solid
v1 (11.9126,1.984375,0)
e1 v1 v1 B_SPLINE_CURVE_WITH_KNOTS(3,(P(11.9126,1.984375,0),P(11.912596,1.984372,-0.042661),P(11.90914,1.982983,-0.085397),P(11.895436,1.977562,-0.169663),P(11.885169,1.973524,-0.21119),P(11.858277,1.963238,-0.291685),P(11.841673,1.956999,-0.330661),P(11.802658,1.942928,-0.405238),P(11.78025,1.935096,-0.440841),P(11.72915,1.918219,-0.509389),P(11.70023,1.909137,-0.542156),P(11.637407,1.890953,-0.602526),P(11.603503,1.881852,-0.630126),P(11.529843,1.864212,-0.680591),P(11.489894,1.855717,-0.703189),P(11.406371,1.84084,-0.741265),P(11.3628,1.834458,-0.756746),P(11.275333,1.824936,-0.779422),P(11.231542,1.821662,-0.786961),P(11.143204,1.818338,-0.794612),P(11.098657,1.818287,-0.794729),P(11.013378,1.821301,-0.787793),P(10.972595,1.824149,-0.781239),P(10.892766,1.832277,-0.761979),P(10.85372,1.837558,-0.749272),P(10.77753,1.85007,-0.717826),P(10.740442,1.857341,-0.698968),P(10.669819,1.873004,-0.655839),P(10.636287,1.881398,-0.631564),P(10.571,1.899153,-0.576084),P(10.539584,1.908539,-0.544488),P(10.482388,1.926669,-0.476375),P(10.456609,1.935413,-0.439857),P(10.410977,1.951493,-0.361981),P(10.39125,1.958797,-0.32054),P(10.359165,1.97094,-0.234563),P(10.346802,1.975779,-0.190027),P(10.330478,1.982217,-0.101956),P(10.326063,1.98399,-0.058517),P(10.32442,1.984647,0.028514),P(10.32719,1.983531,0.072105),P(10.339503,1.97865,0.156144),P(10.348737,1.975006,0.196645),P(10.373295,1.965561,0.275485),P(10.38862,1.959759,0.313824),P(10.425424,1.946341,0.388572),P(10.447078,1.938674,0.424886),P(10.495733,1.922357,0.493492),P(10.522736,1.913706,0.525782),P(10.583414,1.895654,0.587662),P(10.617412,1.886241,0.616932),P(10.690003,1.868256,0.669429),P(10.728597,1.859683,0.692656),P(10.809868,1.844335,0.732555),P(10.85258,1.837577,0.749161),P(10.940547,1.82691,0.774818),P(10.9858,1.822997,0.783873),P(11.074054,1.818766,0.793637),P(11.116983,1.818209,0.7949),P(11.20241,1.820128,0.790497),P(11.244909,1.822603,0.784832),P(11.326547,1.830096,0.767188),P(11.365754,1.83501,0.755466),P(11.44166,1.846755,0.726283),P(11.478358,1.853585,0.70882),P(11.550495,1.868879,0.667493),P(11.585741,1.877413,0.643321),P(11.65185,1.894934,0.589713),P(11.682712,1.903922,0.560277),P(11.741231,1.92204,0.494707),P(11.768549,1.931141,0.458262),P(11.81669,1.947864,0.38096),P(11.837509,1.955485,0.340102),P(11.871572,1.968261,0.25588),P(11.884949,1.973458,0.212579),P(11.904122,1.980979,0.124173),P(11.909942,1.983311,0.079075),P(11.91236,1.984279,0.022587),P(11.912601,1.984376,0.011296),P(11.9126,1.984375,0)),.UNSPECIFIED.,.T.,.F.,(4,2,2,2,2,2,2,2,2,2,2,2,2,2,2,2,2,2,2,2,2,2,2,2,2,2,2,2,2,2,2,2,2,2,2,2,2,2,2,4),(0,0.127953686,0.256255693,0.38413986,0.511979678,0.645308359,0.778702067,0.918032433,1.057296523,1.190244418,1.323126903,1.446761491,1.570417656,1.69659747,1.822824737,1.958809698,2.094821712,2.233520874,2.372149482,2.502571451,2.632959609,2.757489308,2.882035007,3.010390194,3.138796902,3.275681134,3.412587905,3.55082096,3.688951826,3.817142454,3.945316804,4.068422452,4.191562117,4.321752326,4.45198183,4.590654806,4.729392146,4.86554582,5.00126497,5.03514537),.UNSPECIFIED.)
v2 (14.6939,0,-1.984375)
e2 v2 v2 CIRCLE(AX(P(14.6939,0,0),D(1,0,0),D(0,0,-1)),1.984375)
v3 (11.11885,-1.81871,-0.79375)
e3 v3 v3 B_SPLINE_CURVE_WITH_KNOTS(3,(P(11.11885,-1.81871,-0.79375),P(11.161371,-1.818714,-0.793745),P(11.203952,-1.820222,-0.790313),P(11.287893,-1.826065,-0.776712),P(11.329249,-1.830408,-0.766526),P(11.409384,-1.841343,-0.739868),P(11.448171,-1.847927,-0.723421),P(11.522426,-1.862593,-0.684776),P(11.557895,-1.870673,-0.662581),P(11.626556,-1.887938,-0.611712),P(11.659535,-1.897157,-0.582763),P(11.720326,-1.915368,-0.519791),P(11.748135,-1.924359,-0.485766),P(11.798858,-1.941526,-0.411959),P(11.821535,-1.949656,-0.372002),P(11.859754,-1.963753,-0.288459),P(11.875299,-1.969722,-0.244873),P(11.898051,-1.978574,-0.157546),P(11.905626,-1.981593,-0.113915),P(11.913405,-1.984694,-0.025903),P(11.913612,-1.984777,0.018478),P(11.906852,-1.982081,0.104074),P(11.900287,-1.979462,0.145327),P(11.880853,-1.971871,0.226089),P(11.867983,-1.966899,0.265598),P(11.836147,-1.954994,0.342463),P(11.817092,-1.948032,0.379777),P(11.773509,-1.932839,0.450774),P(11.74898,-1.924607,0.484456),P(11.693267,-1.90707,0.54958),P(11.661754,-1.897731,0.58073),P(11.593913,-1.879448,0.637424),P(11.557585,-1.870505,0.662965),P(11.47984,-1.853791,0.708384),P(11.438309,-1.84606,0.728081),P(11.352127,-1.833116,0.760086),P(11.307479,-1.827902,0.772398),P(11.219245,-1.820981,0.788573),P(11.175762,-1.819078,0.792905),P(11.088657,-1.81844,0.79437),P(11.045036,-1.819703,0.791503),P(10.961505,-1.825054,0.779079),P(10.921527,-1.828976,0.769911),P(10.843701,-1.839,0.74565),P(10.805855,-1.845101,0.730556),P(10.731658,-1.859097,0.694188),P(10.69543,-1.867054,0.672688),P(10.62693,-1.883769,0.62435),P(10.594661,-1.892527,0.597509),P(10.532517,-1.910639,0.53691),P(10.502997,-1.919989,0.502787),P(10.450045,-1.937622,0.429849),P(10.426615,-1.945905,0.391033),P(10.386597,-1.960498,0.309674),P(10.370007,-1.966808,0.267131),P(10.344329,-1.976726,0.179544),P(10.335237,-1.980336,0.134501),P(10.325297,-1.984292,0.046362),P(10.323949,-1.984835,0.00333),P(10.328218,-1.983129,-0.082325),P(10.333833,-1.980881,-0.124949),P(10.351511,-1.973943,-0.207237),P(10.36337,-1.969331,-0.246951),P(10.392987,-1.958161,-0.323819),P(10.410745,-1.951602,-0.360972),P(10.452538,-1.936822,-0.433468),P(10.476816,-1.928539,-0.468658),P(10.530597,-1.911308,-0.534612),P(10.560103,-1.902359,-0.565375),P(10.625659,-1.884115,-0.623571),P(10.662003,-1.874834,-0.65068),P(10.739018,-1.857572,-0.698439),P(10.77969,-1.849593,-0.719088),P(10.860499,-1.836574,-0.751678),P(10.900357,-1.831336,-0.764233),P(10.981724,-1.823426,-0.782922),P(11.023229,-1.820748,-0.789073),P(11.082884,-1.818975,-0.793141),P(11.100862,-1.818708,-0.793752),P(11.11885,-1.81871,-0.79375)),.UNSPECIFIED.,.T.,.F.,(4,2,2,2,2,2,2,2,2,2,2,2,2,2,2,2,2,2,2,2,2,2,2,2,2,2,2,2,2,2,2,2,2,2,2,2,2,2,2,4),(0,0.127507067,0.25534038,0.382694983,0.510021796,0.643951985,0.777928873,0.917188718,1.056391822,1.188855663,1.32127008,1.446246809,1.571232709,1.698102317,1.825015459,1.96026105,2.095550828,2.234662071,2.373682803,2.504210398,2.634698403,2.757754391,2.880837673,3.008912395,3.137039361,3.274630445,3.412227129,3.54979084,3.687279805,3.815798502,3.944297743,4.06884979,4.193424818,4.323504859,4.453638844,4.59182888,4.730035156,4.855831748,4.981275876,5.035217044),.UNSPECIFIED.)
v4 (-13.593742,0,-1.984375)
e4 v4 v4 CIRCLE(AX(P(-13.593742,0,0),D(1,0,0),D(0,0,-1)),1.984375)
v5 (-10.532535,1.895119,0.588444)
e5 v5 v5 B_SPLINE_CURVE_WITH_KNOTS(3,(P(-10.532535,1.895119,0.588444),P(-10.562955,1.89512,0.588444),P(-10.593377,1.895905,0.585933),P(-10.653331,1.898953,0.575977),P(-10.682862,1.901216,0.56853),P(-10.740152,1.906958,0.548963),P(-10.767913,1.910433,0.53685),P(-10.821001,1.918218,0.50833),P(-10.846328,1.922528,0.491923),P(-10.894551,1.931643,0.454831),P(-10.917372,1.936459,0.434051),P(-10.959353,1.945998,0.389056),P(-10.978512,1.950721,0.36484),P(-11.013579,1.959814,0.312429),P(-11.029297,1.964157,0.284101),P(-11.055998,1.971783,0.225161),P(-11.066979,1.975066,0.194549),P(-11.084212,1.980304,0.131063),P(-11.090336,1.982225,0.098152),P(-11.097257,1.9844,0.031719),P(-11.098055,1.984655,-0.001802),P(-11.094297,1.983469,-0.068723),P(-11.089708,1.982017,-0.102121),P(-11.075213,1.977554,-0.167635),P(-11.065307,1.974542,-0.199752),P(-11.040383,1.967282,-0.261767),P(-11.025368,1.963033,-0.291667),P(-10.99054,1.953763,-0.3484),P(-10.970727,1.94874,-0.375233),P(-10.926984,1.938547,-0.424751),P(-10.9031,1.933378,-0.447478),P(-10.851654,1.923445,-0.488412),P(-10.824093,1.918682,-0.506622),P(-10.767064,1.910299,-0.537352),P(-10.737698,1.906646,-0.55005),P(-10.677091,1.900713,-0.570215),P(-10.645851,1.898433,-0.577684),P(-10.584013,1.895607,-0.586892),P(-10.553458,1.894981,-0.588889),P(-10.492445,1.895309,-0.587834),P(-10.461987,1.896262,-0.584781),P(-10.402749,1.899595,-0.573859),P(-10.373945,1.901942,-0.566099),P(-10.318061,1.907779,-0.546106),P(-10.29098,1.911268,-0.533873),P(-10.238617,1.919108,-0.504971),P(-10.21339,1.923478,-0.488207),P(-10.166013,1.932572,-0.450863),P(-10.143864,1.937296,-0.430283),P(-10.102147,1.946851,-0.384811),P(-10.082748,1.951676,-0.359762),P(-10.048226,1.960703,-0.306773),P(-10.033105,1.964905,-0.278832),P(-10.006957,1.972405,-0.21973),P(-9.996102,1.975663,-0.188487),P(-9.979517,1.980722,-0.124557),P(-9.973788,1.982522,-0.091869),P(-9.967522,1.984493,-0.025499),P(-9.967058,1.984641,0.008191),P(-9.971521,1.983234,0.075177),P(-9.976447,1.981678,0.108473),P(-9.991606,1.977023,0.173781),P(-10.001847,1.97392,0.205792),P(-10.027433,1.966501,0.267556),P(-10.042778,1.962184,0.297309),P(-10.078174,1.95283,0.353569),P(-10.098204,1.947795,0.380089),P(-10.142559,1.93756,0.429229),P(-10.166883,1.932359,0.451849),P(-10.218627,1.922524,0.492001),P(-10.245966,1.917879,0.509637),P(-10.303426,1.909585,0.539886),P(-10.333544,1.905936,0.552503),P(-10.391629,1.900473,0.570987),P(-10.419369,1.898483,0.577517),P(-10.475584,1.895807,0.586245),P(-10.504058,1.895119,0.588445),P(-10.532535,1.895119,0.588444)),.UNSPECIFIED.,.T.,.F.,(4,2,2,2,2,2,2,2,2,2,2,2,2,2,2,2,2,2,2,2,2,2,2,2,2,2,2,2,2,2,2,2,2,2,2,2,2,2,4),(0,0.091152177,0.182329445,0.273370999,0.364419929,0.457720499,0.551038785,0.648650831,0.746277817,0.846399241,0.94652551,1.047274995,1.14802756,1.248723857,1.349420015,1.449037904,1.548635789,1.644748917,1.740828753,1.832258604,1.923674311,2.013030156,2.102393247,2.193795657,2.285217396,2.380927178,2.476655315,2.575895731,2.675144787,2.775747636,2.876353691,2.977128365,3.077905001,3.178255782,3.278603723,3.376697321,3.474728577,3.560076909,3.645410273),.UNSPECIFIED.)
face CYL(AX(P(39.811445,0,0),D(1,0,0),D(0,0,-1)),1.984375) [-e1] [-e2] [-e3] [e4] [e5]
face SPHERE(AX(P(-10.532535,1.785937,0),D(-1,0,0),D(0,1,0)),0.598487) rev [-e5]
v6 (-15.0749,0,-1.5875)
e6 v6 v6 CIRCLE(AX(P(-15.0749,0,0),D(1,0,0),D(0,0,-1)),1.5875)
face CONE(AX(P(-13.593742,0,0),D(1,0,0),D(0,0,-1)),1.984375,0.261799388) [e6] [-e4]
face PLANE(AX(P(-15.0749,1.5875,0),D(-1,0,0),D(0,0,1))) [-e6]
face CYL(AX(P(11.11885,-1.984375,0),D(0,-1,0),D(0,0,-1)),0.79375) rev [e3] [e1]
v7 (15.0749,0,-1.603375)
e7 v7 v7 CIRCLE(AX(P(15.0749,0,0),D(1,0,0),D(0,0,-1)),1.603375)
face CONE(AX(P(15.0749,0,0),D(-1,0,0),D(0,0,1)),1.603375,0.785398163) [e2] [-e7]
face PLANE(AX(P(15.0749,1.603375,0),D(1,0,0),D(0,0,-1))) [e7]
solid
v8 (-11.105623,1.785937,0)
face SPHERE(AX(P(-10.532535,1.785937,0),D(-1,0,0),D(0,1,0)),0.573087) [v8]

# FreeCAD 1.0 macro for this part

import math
import FreeCAD as App
import Part
import Sketcher
from FreeCAD import Vector
Q = App.Units.Quantity

doc = App.newDocument("Part")
body = doc.addObject("PartDesign::Body", "Body")

# Sketch on XY plane
sketch1 = body.newObject("Sketcher::SketchObject", "Sketch")
sketch1.AttachmentSupport = (doc.getObject("XY_Plane"), [""])
sketch1.MapMode = "FlatFace"
sketch1.addGeometry(Part.LineSegment(Vector(15.0749, 1.603375, 0), Vector(14.6939, 1.984375, 0)), False)
sketch1.addGeometry(Part.LineSegment(Vector(14.6939, 1.984375, 0), Vector(-13.593742, 1.984375, 0)), False)
sketch1.addGeometry(Part.LineSegment(Vector(-13.593742, 1.984375, 0), Vector(-15.0749, 1.5875, 0)), False)
sketch1.addGeometry(Part.LineSegment(Vector(-15.0749, 1.5875, 0), Vector(-15.0749, 0, 0)), False)
sketch1.addGeometry(Part.LineSegment(Vector(-15.0749, 0, 0), Vector(15.0749, 0, 0)), False)
sketch1.addGeometry(Part.LineSegment(Vector(15.0749, 0, 0), Vector(15.0749, 1.603375, 0)), False)
sketch1.addConstraint(Sketcher.Constraint("Coincident", 0, 2, 1, 1))
sketch1.addConstraint(Sketcher.Constraint("Coincident", 1, 2, 2, 1))
sketch1.addConstraint(Sketcher.Constraint("Coincident", 2, 2, 3, 1))
sketch1.addConstraint(Sketcher.Constraint("Coincident", 3, 2, 4, 1))
sketch1.addConstraint(Sketcher.Constraint("Coincident", 4, 2, 5, 1))
sketch1.addConstraint(Sketcher.Constraint("Coincident", 5, 2, 0, 1))
sketch1.addConstraint(Sketcher.Constraint("Horizontal", 1))
sketch1.addConstraint(Sketcher.Constraint("Vertical", 3))
sketch1.addConstraint(Sketcher.Constraint("Horizontal", 4))
sketch1.addConstraint(Sketcher.Constraint("Vertical", 5))
sketch1.addConstraint(Sketcher.Constraint("Symmetric", 3, 2, 4, 2, -1, 1))
sketch1.addConstraint(Sketcher.Constraint("Angle", 0, Q("135 deg")))
sketch1.addConstraint(Sketcher.Constraint("Angle", 2, Q("-165 deg")))
sketch1.addConstraint(Sketcher.Constraint("DistanceX", 4, 1, 4, 2, Q("1.187 in")))
sketch1.addConstraint(Sketcher.Constraint("DistanceY", 3, 2, 3, 1, Q("0.0625 in")))
sketch1.addConstraint(Sketcher.Constraint("DistanceY", -1, 1, 0, 2, Q("0.078125 in")))
sketch1.addConstraint(Sketcher.Constraint("DistanceX", 2, 2, 0, 2, Q("1.172 in")))
revolution = body.newObject("PartDesign::Revolution", "Revolution")
revolution.Profile = sketch1
revolution.ReferenceAxis = (sketch1, ["H_Axis"])
revolution.Angle = 360

# Sketch on XY plane
sketch2 = body.newObject("Sketcher::SketchObject", "Sketch001")
sketch2.AttachmentSupport = (doc.getObject("XY_Plane"), [""])
sketch2.MapMode = "FlatFace"
sketch2.addGeometry(Part.LineSegment(Vector(-11.131023, 1.785937, 0), Vector(-9.934048, 1.785937, 0)), False)
sketch2.addGeometry(Part.ArcOfCircle(Part.Circle(Vector(-10.532535, 1.785937, 0), Vector(0, 0, 1), 0.598487), math.radians(0), math.radians(180)), False)
sketch2.addGeometry(Part.LineSegment(Vector(-11.131023, 1.785937, 0), Vector(-9.934048, 1.785937, 0)), True)  # axis
sketch2.addConstraint(Sketcher.Constraint("Coincident", 0, 1, 1, 2))
sketch2.addConstraint(Sketcher.Constraint("Coincident", 1, 1, 0, 2))
sketch2.addConstraint(Sketcher.Constraint("Horizontal", 0))
sketch2.addConstraint(Sketcher.Constraint("Horizontal", 2))
sketch2.addConstraint(Sketcher.Constraint("Coincident", 2, 1, 0, 1))
sketch2.addConstraint(Sketcher.Constraint("Horizontal", 1, 3, 0, 1))
sketch2.addConstraint(Sketcher.Constraint("Equal", 0, 2))
sketch2.addConstraint(Sketcher.Constraint("Radius", 1, Q("0.598487 mm")))
sketch2.addConstraint(Sketcher.Constraint("DistanceX", 1, 3, -1, 1, Q("10.532535 mm")))
sketch2.addConstraint(Sketcher.Constraint("DistanceY", -1, 1, 1, 3, Q("1.785937 mm")))
groove = body.newObject("PartDesign::Groove", "Groove")
groove.Profile = sketch2
groove.ReferenceAxis = (sketch2, ["Axis0"])
groove.Angle = 360

# Sketch on XY plane
sketch3 = body.newObject("Sketcher::SketchObject", "Sketch002")
sketch3.AttachmentSupport = (doc.getObject("XY_Plane"), [""])
sketch3.MapMode = "FlatFace"
sketch3.addGeometry(Part.LineSegment(Vector(11.11885, 1.984375, 0), Vector(11.11885, -1.984375, 0)), False)
sketch3.addGeometry(Part.LineSegment(Vector(11.11885, -1.984375, 0), Vector(11.9126, -1.984375, 0)), False)
sketch3.addGeometry(Part.LineSegment(Vector(11.9126, -1.984375, 0), Vector(11.9126, 1.984375, 0)), False)
sketch3.addGeometry(Part.LineSegment(Vector(11.9126, 1.984375, 0), Vector(11.11885, 1.984375, 0)), False)
sketch3.addGeometry(Part.LineSegment(Vector(11.11885, -1.984375, 0), Vector(11.11885, 1.984375, 0)), True)  # axis
sketch3.addConstraint(Sketcher.Constraint("Coincident", 0, 2, 1, 1))
sketch3.addConstraint(Sketcher.Constraint("Coincident", 1, 2, 2, 1))
sketch3.addConstraint(Sketcher.Constraint("Coincident", 2, 2, 3, 1))
sketch3.addConstraint(Sketcher.Constraint("Coincident", 3, 2, 0, 1))
sketch3.addConstraint(Sketcher.Constraint("Vertical", 0))
sketch3.addConstraint(Sketcher.Constraint("Horizontal", 1))
sketch3.addConstraint(Sketcher.Constraint("Vertical", 2))
sketch3.addConstraint(Sketcher.Constraint("Horizontal", 3))
sketch3.addConstraint(Sketcher.Constraint("Vertical", 4))
sketch3.addConstraint(Sketcher.Constraint("Coincident", 4, 1, 0, 2))
sketch3.addConstraint(Sketcher.Constraint("Horizontal", 2, 2, 4, 2))
sketch3.addConstraint(Sketcher.Constraint("DistanceX", 1, 1, 1, 2, Q("0.03125 in")))
sketch3.addConstraint(Sketcher.Constraint("DistanceY", 0, 2, 0, 1, Q("0.15625 in")))
sketch3.addConstraint(Sketcher.Constraint("DistanceY", 0, 2, -1, 1, Q("0.078125 in")))
sketch3.addConstraint(Sketcher.Constraint("DistanceX", -1, 1, 1, 2, Q("0.469 in")))
groove2 = body.newObject("PartDesign::Groove", "Groove001")
groove2.Profile = sketch3
groove2.ReferenceAxis = (sketch3, ["Axis0"])
groove2.Angle = 360
body2 = doc.addObject("PartDesign::Body", "Body001")

# Sketch on XY plane
sketch4 = body2.newObject("Sketcher::SketchObject", "Sketch003")
sketch4.AttachmentSupport = (doc.getObject("XY_Plane001"), [""])
sketch4.MapMode = "FlatFace"
sketch4.addGeometry(Part.LineSegment(Vector(-11.105623, 1.785937, 0), Vector(-9.959448, 1.785937, 0)), False)
sketch4.addGeometry(Part.ArcOfCircle(Part.Circle(Vector(-10.532535, 1.785937, 0), Vector(0, 0, 1), 0.573087), math.radians(0), math.radians(180)), False)
sketch4.addGeometry(Part.LineSegment(Vector(-11.105623, 1.785937, 0), Vector(-9.959448, 1.785937, 0)), True)  # axis
sketch4.addConstraint(Sketcher.Constraint("Coincident", 0, 1, 1, 2))
sketch4.addConstraint(Sketcher.Constraint("Coincident", 1, 1, 0, 2))
sketch4.addConstraint(Sketcher.Constraint("Horizontal", 0))
sketch4.addConstraint(Sketcher.Constraint("Horizontal", 2))
sketch4.addConstraint(Sketcher.Constraint("Coincident", 2, 1, 0, 1))
sketch4.addConstraint(Sketcher.Constraint("Horizontal", 1, 3, 0, 1))
sketch4.addConstraint(Sketcher.Constraint("Equal", 0, 2))
sketch4.addConstraint(Sketcher.Constraint("Radius", 1, Q("0.573087 mm")))
sketch4.addConstraint(Sketcher.Constraint("DistanceX", 1, 3, -1, 1, Q("10.532535 mm")))
sketch4.addConstraint(Sketcher.Constraint("DistanceY", -1, 1, 1, 3, Q("1.785937 mm")))
revolution2 = body2.newObject("PartDesign::Revolution", "Revolution001")
revolution2.Profile = sketch4
revolution2.ReferenceAxis = (sketch4, ["Axis0"])
revolution2.Angle = 360

doc.recompute()
